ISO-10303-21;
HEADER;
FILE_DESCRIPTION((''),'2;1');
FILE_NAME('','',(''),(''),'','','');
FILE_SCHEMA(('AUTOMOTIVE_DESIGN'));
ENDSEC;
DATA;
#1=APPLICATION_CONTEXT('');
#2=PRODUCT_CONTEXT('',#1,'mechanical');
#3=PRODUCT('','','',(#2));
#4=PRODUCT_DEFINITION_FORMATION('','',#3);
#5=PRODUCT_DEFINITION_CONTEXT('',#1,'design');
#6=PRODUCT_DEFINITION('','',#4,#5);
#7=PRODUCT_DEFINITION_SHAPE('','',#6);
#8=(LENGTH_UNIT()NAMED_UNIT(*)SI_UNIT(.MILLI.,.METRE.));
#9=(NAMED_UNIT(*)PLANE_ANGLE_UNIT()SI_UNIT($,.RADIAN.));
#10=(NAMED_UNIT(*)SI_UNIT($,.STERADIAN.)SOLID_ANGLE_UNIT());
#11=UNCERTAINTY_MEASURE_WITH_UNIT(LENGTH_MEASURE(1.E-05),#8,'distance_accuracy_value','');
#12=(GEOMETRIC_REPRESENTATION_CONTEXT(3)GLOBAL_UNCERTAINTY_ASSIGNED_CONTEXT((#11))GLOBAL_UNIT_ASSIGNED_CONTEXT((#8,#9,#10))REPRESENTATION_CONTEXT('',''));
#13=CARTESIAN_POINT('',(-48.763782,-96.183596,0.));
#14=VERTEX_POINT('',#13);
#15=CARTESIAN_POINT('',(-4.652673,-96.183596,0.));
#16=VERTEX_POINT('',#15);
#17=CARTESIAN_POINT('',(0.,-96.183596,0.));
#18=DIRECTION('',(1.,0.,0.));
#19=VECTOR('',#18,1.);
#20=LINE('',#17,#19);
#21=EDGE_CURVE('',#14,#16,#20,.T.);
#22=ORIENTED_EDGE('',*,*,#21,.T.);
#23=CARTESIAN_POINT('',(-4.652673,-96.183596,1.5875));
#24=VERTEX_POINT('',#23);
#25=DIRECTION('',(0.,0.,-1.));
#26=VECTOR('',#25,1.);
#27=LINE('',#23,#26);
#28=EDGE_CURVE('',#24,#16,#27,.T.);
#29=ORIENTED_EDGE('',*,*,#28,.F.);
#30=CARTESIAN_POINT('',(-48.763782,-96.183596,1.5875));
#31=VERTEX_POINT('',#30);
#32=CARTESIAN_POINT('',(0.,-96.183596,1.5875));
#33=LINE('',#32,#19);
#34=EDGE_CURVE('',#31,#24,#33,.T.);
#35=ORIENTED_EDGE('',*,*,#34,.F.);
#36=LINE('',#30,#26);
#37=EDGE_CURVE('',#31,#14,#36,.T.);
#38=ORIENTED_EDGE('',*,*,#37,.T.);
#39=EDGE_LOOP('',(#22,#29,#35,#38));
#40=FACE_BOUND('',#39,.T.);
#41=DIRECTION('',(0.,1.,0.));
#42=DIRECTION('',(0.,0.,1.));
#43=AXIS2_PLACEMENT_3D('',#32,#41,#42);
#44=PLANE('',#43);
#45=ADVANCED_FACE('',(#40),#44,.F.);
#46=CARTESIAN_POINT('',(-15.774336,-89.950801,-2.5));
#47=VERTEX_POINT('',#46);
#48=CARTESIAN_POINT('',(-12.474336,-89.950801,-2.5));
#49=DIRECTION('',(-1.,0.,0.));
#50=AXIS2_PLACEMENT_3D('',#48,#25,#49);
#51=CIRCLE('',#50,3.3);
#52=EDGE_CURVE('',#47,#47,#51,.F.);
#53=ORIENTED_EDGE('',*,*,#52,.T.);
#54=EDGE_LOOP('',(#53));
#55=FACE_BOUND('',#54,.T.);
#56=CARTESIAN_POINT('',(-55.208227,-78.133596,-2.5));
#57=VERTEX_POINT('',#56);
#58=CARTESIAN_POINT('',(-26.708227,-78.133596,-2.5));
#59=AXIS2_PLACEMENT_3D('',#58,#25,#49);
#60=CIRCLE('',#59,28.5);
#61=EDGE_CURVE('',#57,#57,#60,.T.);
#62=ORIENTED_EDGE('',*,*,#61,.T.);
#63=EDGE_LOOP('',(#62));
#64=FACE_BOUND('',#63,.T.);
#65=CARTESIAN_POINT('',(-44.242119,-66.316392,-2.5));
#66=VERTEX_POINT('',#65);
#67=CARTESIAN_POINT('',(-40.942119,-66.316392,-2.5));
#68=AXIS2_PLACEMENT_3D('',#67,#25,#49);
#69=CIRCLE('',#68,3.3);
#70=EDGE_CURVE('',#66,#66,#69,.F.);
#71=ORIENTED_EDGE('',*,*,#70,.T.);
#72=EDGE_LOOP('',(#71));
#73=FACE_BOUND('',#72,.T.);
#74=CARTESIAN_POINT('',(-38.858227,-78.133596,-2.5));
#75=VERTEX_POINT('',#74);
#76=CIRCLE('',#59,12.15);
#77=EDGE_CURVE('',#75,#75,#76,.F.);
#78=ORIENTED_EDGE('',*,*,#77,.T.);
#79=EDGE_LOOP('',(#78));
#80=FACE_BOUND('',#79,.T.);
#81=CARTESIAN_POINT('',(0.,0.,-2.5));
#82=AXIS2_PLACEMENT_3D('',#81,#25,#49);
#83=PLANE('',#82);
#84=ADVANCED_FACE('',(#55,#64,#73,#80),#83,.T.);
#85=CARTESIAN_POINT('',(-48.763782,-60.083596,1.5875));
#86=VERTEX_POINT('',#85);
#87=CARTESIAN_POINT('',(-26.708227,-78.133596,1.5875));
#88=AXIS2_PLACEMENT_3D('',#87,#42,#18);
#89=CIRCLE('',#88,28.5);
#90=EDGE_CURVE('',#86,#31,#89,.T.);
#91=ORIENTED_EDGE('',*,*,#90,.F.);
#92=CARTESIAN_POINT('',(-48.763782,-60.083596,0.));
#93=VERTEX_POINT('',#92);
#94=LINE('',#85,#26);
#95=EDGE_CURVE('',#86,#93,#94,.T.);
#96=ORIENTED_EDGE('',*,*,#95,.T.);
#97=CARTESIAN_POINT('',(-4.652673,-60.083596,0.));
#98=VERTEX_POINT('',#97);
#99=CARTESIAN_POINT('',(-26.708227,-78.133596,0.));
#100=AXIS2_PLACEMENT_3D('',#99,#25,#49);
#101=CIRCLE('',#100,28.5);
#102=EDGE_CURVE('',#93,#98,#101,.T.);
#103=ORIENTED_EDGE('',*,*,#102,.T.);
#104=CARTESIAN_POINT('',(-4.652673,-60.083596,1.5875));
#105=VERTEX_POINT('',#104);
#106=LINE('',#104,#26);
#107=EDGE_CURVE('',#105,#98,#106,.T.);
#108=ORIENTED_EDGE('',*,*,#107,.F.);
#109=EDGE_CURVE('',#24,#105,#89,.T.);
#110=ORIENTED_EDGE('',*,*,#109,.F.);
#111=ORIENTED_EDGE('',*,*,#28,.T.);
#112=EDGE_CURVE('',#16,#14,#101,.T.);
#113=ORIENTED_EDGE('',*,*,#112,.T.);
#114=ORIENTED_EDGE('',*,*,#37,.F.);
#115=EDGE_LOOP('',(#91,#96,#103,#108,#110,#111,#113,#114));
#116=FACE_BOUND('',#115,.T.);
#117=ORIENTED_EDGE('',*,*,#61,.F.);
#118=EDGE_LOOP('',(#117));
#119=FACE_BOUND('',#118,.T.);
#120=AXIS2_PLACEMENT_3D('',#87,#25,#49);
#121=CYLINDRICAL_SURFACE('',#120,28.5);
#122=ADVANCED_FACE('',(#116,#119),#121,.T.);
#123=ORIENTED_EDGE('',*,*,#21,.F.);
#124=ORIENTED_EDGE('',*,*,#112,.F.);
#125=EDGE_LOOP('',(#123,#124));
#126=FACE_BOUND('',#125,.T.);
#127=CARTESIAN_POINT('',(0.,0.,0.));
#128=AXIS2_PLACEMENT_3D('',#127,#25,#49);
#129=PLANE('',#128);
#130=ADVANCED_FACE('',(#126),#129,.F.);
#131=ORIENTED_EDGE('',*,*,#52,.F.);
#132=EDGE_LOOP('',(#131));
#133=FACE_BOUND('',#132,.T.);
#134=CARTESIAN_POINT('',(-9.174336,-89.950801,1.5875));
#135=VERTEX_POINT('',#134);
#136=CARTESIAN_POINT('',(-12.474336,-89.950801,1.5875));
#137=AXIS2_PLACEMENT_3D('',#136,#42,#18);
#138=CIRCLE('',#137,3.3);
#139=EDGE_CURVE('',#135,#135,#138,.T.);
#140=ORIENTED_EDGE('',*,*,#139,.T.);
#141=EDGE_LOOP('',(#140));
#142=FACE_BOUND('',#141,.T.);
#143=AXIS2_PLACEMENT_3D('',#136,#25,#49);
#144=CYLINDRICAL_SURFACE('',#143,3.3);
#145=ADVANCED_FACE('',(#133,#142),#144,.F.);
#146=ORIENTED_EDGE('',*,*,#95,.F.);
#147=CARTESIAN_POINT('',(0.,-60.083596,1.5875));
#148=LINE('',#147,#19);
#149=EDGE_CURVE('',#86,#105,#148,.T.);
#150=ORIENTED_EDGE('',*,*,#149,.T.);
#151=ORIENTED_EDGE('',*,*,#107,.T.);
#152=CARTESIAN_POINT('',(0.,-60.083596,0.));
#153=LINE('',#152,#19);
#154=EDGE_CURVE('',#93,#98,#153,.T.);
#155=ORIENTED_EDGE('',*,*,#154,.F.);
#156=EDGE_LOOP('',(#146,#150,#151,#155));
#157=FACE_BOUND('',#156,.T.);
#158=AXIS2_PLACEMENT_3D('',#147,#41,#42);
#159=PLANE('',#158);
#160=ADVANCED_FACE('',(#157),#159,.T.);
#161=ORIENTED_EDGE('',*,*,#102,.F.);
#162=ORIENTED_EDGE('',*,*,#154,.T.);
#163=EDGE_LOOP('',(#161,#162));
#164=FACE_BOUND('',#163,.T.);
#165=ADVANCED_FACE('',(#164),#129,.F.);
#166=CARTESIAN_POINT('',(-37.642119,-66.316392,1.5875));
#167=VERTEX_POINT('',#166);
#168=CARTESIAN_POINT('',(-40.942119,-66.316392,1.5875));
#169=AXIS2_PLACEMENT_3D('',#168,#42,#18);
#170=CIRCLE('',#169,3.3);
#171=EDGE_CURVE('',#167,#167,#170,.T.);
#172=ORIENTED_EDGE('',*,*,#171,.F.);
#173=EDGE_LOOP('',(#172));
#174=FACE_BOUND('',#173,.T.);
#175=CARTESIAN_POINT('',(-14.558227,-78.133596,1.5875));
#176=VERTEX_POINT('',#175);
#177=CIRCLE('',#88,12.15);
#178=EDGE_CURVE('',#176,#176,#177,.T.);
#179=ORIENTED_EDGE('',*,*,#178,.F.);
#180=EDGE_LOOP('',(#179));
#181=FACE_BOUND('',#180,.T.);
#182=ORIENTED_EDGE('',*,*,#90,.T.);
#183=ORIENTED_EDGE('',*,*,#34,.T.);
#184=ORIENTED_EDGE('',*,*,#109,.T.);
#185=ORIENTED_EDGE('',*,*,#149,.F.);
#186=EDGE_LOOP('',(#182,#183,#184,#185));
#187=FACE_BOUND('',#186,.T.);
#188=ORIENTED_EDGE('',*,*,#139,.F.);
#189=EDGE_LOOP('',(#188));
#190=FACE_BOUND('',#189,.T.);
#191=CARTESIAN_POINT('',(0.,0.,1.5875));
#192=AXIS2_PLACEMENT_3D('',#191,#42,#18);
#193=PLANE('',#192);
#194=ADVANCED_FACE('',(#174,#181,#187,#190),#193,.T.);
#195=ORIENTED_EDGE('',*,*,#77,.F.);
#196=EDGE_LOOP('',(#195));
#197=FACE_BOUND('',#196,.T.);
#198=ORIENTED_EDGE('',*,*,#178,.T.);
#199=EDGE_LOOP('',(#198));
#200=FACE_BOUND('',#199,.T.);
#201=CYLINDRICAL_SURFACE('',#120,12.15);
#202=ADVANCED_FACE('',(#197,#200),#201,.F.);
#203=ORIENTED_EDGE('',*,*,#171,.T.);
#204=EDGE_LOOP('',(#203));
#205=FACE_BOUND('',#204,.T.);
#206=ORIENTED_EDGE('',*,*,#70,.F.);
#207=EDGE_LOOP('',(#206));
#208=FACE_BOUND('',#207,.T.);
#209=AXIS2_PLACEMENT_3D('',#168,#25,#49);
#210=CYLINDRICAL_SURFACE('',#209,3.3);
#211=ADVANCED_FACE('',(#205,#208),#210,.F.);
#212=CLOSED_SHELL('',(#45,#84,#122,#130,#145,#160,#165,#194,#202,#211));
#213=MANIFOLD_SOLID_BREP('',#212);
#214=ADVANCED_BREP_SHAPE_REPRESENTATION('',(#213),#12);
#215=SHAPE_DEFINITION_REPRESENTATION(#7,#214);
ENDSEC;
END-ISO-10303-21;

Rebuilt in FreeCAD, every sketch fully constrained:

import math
import FreeCAD as App
import Part
import Sketcher

doc = App.newDocument("Part")
body = doc.addObject("PartDesign::Body", "Body")

# Sketch on XY plane
sketch1 = body.newObject("Sketcher::SketchObject", "Sketch")
sketch1.AttachmentSupport = (doc.getObject("XY_Plane"), [""])
sketch1.MapMode = "FlatFace"
sketch1.addGeometry([
    Part.LineSegment(App.Vector(-4.7, -60.1, 0), App.Vector(-48.8, -60.1, 0)),  # 0
    Part.ArcOfCircle(Part.Circle(App.Vector(-26.7, -78.1, 0), App.Vector(0, 0, 1), 28.5), math.radians(141), math.radians(219)),  # 1
    Part.LineSegment(App.Vector(-48.8, -96.2, 0), App.Vector(-4.7, -96.2, 0)),  # 2
    Part.ArcOfCircle(Part.Circle(App.Vector(-26.7, -78.1, 0), App.Vector(0, 0, 1), 28.5), math.radians(-39), math.radians(0)),  # 3
    Part.ArcOfCircle(Part.Circle(App.Vector(-26.7, -78.1, 0), App.Vector(0, 0, 1), 28.5), math.radians(0), math.radians(39)),  # 4
    Part.Circle(App.Vector(-12.5, -90, 0), App.Vector(0, 0, 1), 3.3),  # 5
    Part.Circle(App.Vector(-26.7, -78.1, 0), App.Vector(0, 0, 1), 12.2),  # 6
    Part.Circle(App.Vector(-40.9, -66.3, 0), App.Vector(0, 0, 1), 3.3),  # 7
], False)
sketch1.addConstraint([
    Sketcher.Constraint("Coincident", 0, 2, 1, 1),
    Sketcher.Constraint("Coincident", 1, 2, 2, 1),
    Sketcher.Constraint("Coincident", 2, 2, 3, 1),
    Sketcher.Constraint("Tangent", 3, 2, 4, 1),
    Sketcher.Constraint("Coincident", 4, 2, 0, 1),
    Sketcher.Constraint("Horizontal", 0),
    Sketcher.Constraint("Horizontal", 2),
    Sketcher.Constraint("Coincident", 3, 3, 1, 3),
    Sketcher.Constraint("Coincident", 6, 3, 1, 3),
    Sketcher.Constraint("Equal", 1, 3),
    Sketcher.Constraint("Equal", 3, 4),
    Sketcher.Constraint("Equal", 5, 7),
    Sketcher.Constraint("Horizontal", 6, 3, 3, 2),
    Sketcher.Constraint("Vertical", 0, 2, 1, 2),
    Sketcher.Constraint("Diameter", 5, 6.6),
    Sketcher.Constraint("Diameter", 6, 24.3),
    Sketcher.Constraint("Radius", 1, 28.5),
    Sketcher.Constraint("DistanceY", 3, 3, 0, 2, 18.05),
    Sketcher.Constraint("DistanceY", 5, 3, -1, 1, 89.950801),
    Sketcher.Constraint("DistanceX", 7, 3, -1, 1, 40.942119),
    Sketcher.Constraint("DistanceY", 7, 3, -1, 1, 66.316392),
    Sketcher.Constraint("DistanceX", 1, 3, 5, 3, 14.233892),
    Sketcher.Constraint("DistanceX", 7, 3, 3, 3, 14.233892),
    Sketcher.Constraint("DistanceY", 1, 3, -1, 1, 78.133596),
])
pad1 = body.newObject("PartDesign::Pad", "Pad")
pad1.Profile = sketch1
pad1.Length = 1.5875

# Sketch on XY plane
sketch2 = body.newObject("Sketcher::SketchObject", "Sketch001")
sketch2.AttachmentSupport = (doc.getObject("XY_Plane"), [""])
sketch2.MapMode = "FlatFace"
sketch2.AttachmentOffset = App.Placement(App.Vector(0, 0, -2.5), App.Rotation())
sketch2.addGeometry([
    Part.Circle(App.Vector(-26.7, -78.1, 0), App.Vector(0, 0, 1), 28.5),
    Part.Circle(App.Vector(-12.5, -90, 0), App.Vector(0, 0, 1), 3.3),
    Part.Circle(App.Vector(-26.7, -78.1, 0), App.Vector(0, 0, 1), 12.2),
    Part.Circle(App.Vector(-40.9, -66.3, 0), App.Vector(0, 0, 1), 3.3),
], False)
sketch2.addConstraint([
    Sketcher.Constraint("Coincident", 2, 3, 0, 3),
    Sketcher.Constraint("Equal", 1, 3),
    Sketcher.Constraint("Diameter", 0, 57.0),
    Sketcher.Constraint("Diameter", 1, 6.6),
    Sketcher.Constraint("Diameter", 2, 24.3),
    Sketcher.Constraint("DistanceY", 1, 3, -1, 1, 89.950801),
    Sketcher.Constraint("DistanceX", 3, 3, -1, 1, 40.942119),
    Sketcher.Constraint("DistanceY", 3, 3, -1, 1, 66.316392),
    Sketcher.Constraint("DistanceX", 0, 3, 1, 3, 14.233892),
    Sketcher.Constraint("DistanceX", 3, 3, 0, 3, 14.233892),
    Sketcher.Constraint("DistanceY", 0, 3, -1, 1, 78.133596),
])
pad2 = body.newObject("PartDesign::Pad", "Pad001")
pad2.Profile = sketch2
pad2.Length = 2.5

doc.recompute()
